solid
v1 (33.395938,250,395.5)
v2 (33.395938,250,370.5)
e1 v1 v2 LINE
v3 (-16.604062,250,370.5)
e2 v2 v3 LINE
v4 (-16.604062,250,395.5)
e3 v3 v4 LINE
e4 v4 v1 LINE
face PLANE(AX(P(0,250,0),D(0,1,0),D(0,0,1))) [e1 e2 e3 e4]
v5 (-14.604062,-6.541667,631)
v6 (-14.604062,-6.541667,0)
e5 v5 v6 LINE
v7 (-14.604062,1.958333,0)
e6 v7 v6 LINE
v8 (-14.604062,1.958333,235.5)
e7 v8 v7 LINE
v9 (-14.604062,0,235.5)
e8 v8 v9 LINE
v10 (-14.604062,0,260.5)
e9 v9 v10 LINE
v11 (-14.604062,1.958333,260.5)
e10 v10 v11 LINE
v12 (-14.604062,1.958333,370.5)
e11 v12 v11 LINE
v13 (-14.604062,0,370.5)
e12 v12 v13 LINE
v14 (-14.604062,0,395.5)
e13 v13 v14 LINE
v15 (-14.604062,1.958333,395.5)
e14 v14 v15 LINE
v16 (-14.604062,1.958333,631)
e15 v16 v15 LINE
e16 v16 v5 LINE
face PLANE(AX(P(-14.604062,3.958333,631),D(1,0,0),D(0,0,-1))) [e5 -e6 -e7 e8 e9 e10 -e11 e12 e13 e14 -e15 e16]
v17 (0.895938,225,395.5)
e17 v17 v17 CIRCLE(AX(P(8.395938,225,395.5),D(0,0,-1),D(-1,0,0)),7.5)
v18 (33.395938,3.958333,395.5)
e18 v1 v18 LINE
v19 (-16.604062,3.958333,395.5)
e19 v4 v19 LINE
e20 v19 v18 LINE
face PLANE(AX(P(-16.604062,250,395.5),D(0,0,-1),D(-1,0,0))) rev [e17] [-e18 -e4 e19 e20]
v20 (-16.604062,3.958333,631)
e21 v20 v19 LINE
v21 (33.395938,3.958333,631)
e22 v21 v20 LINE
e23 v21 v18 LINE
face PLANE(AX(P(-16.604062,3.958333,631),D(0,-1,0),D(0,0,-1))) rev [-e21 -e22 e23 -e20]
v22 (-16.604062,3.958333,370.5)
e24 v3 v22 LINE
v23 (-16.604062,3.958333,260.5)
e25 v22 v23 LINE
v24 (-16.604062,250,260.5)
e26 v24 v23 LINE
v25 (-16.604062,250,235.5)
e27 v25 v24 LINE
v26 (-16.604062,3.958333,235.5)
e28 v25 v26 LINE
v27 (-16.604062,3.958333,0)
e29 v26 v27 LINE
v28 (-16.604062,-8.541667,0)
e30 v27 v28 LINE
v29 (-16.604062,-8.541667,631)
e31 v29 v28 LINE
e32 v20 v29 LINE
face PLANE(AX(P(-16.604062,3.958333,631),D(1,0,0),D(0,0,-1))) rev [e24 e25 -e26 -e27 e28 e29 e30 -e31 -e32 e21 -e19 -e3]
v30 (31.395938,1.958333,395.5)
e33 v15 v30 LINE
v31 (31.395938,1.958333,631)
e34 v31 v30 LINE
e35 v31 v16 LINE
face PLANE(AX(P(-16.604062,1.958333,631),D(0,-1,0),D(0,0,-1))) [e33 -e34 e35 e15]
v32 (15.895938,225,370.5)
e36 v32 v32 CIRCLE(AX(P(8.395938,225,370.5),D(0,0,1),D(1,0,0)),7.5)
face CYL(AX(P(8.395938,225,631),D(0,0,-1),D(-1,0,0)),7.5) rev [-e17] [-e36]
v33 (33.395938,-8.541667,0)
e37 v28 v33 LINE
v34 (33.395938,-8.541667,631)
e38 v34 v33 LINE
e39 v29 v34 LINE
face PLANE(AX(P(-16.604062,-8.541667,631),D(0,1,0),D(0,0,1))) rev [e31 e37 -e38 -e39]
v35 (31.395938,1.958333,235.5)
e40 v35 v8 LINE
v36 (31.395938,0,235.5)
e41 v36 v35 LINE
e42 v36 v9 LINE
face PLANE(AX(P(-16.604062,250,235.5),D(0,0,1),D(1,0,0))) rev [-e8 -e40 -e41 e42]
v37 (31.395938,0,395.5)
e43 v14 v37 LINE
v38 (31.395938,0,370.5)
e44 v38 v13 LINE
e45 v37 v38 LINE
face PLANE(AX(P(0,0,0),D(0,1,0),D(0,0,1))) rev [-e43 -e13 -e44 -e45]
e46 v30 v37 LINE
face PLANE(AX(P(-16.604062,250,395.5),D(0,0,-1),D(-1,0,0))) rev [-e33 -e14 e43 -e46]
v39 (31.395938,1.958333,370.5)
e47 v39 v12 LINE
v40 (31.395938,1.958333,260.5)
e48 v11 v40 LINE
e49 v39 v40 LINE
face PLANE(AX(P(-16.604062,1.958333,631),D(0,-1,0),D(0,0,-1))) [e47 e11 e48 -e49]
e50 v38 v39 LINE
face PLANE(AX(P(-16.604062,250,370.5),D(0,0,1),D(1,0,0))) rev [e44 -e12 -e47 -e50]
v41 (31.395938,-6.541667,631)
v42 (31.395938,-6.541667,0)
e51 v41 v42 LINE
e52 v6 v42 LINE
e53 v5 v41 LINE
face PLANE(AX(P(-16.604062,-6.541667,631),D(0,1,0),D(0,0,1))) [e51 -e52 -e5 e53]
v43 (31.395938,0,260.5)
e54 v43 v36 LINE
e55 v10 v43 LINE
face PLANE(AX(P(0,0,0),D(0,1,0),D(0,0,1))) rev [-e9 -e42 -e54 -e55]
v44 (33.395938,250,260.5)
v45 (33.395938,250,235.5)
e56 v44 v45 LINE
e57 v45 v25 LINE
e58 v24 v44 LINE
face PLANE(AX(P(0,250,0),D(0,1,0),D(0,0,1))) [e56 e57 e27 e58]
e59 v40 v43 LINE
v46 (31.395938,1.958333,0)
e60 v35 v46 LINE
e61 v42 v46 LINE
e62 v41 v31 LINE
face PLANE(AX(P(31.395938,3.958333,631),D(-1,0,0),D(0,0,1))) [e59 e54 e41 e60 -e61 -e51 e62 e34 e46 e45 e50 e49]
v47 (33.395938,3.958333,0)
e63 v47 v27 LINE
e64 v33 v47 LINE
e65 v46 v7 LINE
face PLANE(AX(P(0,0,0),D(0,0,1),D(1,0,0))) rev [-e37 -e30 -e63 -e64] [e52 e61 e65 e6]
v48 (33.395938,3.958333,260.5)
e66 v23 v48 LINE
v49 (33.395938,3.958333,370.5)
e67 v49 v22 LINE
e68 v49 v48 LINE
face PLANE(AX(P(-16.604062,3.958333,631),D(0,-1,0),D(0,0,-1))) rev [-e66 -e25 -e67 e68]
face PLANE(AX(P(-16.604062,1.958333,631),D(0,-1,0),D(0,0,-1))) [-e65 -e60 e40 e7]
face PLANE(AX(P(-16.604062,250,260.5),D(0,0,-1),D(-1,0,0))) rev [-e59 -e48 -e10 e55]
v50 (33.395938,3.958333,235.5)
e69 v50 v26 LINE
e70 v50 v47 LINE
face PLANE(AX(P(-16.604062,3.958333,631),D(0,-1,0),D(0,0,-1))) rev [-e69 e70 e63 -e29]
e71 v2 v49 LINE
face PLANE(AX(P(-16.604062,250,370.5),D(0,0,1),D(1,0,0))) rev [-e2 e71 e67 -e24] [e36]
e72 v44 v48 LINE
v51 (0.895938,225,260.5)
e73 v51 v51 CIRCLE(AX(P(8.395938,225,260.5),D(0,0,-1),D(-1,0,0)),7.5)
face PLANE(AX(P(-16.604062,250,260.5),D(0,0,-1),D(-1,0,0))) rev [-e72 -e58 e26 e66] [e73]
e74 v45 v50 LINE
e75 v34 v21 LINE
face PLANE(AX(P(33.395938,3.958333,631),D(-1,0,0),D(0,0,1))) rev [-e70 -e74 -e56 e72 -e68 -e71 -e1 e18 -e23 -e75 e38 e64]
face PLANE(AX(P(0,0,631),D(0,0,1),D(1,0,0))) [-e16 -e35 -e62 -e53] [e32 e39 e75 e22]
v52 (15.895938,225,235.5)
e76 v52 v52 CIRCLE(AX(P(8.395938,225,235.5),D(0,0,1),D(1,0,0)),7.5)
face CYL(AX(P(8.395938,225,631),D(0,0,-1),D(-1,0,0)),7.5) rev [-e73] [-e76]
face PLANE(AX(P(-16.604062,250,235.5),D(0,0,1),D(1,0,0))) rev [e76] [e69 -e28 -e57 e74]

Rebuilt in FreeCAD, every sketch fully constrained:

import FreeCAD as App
import Part
import Sketcher

V = App.Vector
Q = App.Units.Quantity


def faces_at(feature, points):
    """Names of the faces that lie closest to the given points."""
    faces = feature.Shape.Faces
    near = lambda p: min(range(len(faces)), key=lambda i: faces[i].distToShape(Part.Vertex(*p))[0])
    return sorted({f"Face{near(p) + 1}" for p in points})

doc = App.newDocument("Part")
body = doc.addObject("PartDesign::Body", "Body")

sketch1 = body.newObject("Sketcher::SketchObject", "Sketch")
sketch1.AttachmentSupport = (doc.getObject("XY_Plane"), [""])
sketch1.MapMode = "FlatFace"
sketch1.addGeometry([
    Part.LineSegment(V(-17, 4, 0), V(-17, -9, 0)),
    Part.LineSegment(V(-17, -9, 0), V(33, -9, 0)),
    Part.LineSegment(V(33, -9, 0), V(33, 4, 0)),
    Part.LineSegment(V(33, 4, 0), V(-17, 4, 0)),
], False)
sketch1.addConstraint([
    Sketcher.Constraint("Coincident", 0, 2, 1, 1),
    Sketcher.Constraint("Coincident", 1, 2, 2, 1),
    Sketcher.Constraint("Coincident", 2, 2, 3, 1),
    Sketcher.Constraint("Coincident", 3, 2, 0, 1),
    Sketcher.Constraint("Vertical", 0),
    Sketcher.Constraint("Horizontal", 1),
    Sketcher.Constraint("Vertical", 2),
    Sketcher.Constraint("Horizontal", 3),
    Sketcher.Constraint("DistanceX", 1, 1, 1, 2, Q("50 mm")),
    Sketcher.Constraint("DistanceY", 0, 2, 0, 1, Q("12.5 mm")),
    Sketcher.Constraint("DistanceX", 0, 2, -1, 1, Q("16.604062 mm")),
    Sketcher.Constraint("DistanceY", 0, 2, -1, 1, Q("8.541667 mm")),
])
pad1 = body.newObject("PartDesign::Pad", "Pad")
pad1.Profile = sketch1
pad1.Length = 631
doc.recompute()

thickness = body.newObject("PartDesign::Thickness", "Thickness")
thickness.Base = (pad1, faces_at(pad1, [(8.396, -2.292, 631), (8.396, -2.292, 0)]))
thickness.Value = 2
thickness.Reversed = True
thickness.Join = "Intersection"

sketch2 = body.newObject("Sketcher::SketchObject", "Sketch001")
sketch2.AttachmentSupport = (doc.getObject("XZ_Plane"), [""])
sketch2.MapMode = "FlatFace"
sketch2.addGeometry([
    Part.LineSegment(V(-17, 236, 0), V(-17, 260, 0)),
    Part.LineSegment(V(-17, 260, 0), V(33, 260, 0)),
    Part.LineSegment(V(33, 260, 0), V(33, 236, 0)),
    Part.LineSegment(V(33, 236, 0), V(-17, 236, 0)),
    Part.LineSegment(V(-17, 370, 0), V(-17, 396, 0)),
    Part.LineSegment(V(-17, 396, 0), V(33, 396, 0)),
    Part.LineSegment(V(33, 396, 0), V(33, 370, 0)),
    Part.LineSegment(V(33, 370, 0), V(-17, 370, 0)),
], False)
sketch2.addConstraint([
    Sketcher.Constraint("Coincident", 0, 2, 1, 1),
    Sketcher.Constraint("Coincident", 1, 2, 2, 1),
    Sketcher.Constraint("Coincident", 2, 2, 3, 1),
    Sketcher.Constraint("Coincident", 3, 2, 0, 1),
    Sketcher.Constraint("Coincident", 4, 2, 5, 1),
    Sketcher.Constraint("Coincident", 5, 2, 6, 1),
    Sketcher.Constraint("Coincident", 6, 2, 7, 1),
    Sketcher.Constraint("Coincident", 7, 2, 4, 1),
    Sketcher.Constraint("Vertical", 0),
    Sketcher.Constraint("Horizontal", 1),
    Sketcher.Constraint("Vertical", 2),
    Sketcher.Constraint("Horizontal", 3),
    Sketcher.Constraint("Vertical", 4),
    Sketcher.Constraint("Horizontal", 5),
    Sketcher.Constraint("Vertical", 6),
    Sketcher.Constraint("Horizontal", 7),
    Sketcher.Constraint("Vertical", 3, 2, 4, 2),
    Sketcher.Constraint("Vertical", 2, 2, 5, 2),
    Sketcher.Constraint("Equal", 2, 4),
    Sketcher.Constraint("DistanceX", 1, 1, 1, 2, Q("50 mm")),
    Sketcher.Constraint("DistanceY", 0, 1, 0, 2, Q("25 mm")),
    Sketcher.Constraint("DistanceY", 0, 2, 4, 2, Q("135 mm")),
    Sketcher.Constraint("DistanceY", -1, 1, 0, 2, Q("260.5 mm")),
    Sketcher.Constraint("DistanceX", 0, 2, -1, 1, Q("16.604062 mm")),
])
pad2 = body.newObject("PartDesign::Pad", "Pad001")
pad2.Profile = sketch2
pad2.Length = 250
pad2.Reversed = True

sketch3 = body.newObject("Sketcher::SketchObject", "Sketch002")
sketch3.AttachmentSupport = (doc.getObject("XY_Plane"), [""])
sketch3.MapMode = "FlatFace"
sketch3.AttachmentOffset = App.Placement(V(0, 0, 235.5), App.Rotation())
sketch3.addGeometry(Part.Circle(V(8, 225, 0), V(0, 0, 1), 8), False)
sketch3.addConstraint([
    Sketcher.Constraint("Diameter", 0, Q("15 mm")),
    Sketcher.Constraint("DistanceY", -1, 1, 0, 3, Q("225 mm")),
    Sketcher.Constraint("DistanceX", -1, 1, 0, 3, Q("8.395938 mm")),
])
pocket1 = body.newObject("PartDesign::Pocket", "Pocket")
pocket1.Profile = sketch3
pocket1.Type = "ThroughAll"
pocket1.Midplane = True

doc.recompute()
